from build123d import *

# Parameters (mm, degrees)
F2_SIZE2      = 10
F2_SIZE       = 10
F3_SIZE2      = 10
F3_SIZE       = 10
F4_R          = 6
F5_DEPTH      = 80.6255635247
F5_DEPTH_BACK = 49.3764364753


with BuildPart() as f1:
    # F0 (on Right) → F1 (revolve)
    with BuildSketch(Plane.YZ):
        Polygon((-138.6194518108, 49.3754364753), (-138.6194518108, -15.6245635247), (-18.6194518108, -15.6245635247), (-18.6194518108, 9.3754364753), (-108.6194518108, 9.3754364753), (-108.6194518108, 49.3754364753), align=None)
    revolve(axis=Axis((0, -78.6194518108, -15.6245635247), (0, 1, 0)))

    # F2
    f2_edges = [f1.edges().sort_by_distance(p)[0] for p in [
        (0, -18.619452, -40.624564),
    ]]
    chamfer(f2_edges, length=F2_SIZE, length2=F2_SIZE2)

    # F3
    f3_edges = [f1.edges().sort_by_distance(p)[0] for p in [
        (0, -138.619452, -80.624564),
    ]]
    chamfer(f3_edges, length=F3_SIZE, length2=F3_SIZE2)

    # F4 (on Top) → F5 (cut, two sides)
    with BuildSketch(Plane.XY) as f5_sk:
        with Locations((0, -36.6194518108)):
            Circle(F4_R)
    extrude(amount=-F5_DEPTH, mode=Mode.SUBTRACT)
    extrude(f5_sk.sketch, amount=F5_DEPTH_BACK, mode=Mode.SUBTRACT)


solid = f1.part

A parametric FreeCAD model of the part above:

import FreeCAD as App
import Part
import Sketcher
from FreeCAD import Vector


def edges_at(feature, points):
    """Names of the edges that pass closest to the given points."""
    edges = feature.Shape.Edges
    near = lambda p: min(range(len(edges)), key=lambda i: edges[i].distToShape(Part.Vertex(*p))[0])
    return sorted({f"Edge{near(p) + 1}" for p in points})

doc = App.newDocument("Part")
params = doc.addObject("Spreadsheet::Sheet", "Params")
for row, (alias, value) in enumerate([
    ("sketch1_width", "120 mm"),
    ("sketch1_width2", "90 mm"),
    ("sketch1_height", "65 mm"),
    ("sketch1_height2", "25 mm"),
    ("revolution_angle", "360 deg"),
    ("chamfer_size", "10 mm"),
    ("chamfer_size2", "10 mm"),
    ("chamfer2_size", "10 mm"),
    ("chamfer2_size2", "10 mm"),
    ("sketch2_diameter", "12 mm"),
], start=1):
    params.set(f"A{row}", alias)
    params.set(f"B{row}", "=" + value)
    params.setAlias(f"B{row}", alias)

body = doc.addObject("PartDesign::Body", "Body")

# Sketch on YZ plane
sketch1 = body.newObject("Sketcher::SketchObject", "Sketch")
sketch1.AttachmentSupport = (doc.getObject("YZ_Plane"), [""])
sketch1.MapMode = "FlatFace"
sketch1.addGeometry([
    Part.LineSegment(Vector(-138.619452, 49.375436, 0), Vector(-138.619452, -15.624564, 0)),  # 0
    Part.LineSegment(Vector(-138.619452, -15.624564, 0), Vector(-18.619452, -15.624564, 0)),  # 1
    Part.LineSegment(Vector(-18.619452, -15.624564, 0), Vector(-18.619452, 9.375436, 0)),  # 2
    Part.LineSegment(Vector(-18.619452, 9.375436, 0), Vector(-108.619452, 9.375436, 0)),  # 3
    Part.LineSegment(Vector(-108.619452, 9.375436, 0), Vector(-108.619452, 49.375436, 0)),  # 4
    Part.LineSegment(Vector(-108.619452, 49.375436, 0), Vector(-138.619452, 49.375436, 0)),  # 5
], False)
sketch1.addGeometry(Part.LineSegment(Vector(-138.619452, -15.624564, 0), Vector(-18.619452, -15.624564, 0)), True)  # axis
sketch1.addConstraint([
    Sketcher.Constraint("Coincident", 0, 2, 1, 1),
    Sketcher.Constraint("Coincident", 1, 2, 2, 1),
    Sketcher.Constraint("Coincident", 2, 2, 3, 1),
    Sketcher.Constraint("Coincident", 3, 2, 4, 1),
    Sketcher.Constraint("Coincident", 4, 2, 5, 1),
    Sketcher.Constraint("Coincident", 5, 2, 0, 1),
    Sketcher.Constraint("Vertical", 0),
    Sketcher.Constraint("Horizontal", 1),
    Sketcher.Constraint("Vertical", 2),
    Sketcher.Constraint("Horizontal", 3),
    Sketcher.Constraint("Vertical", 4),
    Sketcher.Constraint("Horizontal", 5),
    Sketcher.Constraint("Horizontal", 6),
    Sketcher.Constraint("Coincident", 6, 1, 0, 2),
    Sketcher.Constraint("Vertical", 2, 2, 6, 2),
    Sketcher.Constraint("DistanceX", 1, 1, 1, 2, 120.0),
    Sketcher.Constraint("DistanceX", 3, 2, 3, 1, 90.0),
    Sketcher.Constraint("DistanceY", 0, 2, 0, 1, 65.0),
    Sketcher.Constraint("DistanceY", 2, 1, 2, 2, 25.0),
    Sketcher.Constraint("DistanceX", 0, 2, -1, 1, 138.619452),
    Sketcher.Constraint("DistanceY", 0, 2, -1, 1, 15.624564),
])
sketch1.setExpression("Constraints[15]", "Params.sketch1_width")
sketch1.setExpression("Constraints[16]", "Params.sketch1_width2")
sketch1.setExpression("Constraints[17]", "Params.sketch1_height")
sketch1.setExpression("Constraints[18]", "Params.sketch1_height2")
revolution = body.newObject("PartDesign::Revolution", "Revolution")
revolution.Profile = sketch1
revolution.ReferenceAxis = (sketch1, ["Axis0"])
revolution.setExpression("Angle", "Params.revolution_angle")
doc.recompute()

chamfer = body.newObject("PartDesign::Chamfer", "Chamfer")
chamfer.Base = (revolution, edges_at(revolution, [(0, -18.619, -40.625)]))
chamfer.ChamferType = "Two distances"
chamfer.setExpression("Size", "Params.chamfer_size")
chamfer.setExpression("Size2", "Params.chamfer_size2")
doc.recompute()

chamfer2 = body.newObject("PartDesign::Chamfer", "Chamfer001")
chamfer2.Base = (chamfer, edges_at(chamfer, [(0, -138.619, -80.625)]))
chamfer2.ChamferType = "Two distances"
chamfer2.setExpression("Size", "Params.chamfer2_size")
chamfer2.setExpression("Size2", "Params.chamfer2_size2")

# Sketch on XY plane
sketch2 = body.newObject("Sketcher::SketchObject", "Sketch001")
sketch2.AttachmentSupport = (doc.getObject("XY_Plane"), [""])
sketch2.MapMode = "FlatFace"
sketch2.addGeometry(Part.Circle(Vector(0, -36.619452, 0), Vector(0, 0, 1), 6), False)
sketch2.addConstraint([
    Sketcher.Constraint("PointOnObject", 0, 3, -2),
    Sketcher.Constraint("Diameter", 0, 12.0),
    Sketcher.Constraint("DistanceY", 0, 3, -1, 1, 36.619452),
])
sketch2.setExpression("Constraints[1]", "Params.sketch2_diameter")
pocket1 = body.newObject("PartDesign::Pocket", "Pocket")
pocket1.Profile = sketch2
pocket1.Type = "ThroughAll"
pocket1.Midplane = True

doc.recompute()
